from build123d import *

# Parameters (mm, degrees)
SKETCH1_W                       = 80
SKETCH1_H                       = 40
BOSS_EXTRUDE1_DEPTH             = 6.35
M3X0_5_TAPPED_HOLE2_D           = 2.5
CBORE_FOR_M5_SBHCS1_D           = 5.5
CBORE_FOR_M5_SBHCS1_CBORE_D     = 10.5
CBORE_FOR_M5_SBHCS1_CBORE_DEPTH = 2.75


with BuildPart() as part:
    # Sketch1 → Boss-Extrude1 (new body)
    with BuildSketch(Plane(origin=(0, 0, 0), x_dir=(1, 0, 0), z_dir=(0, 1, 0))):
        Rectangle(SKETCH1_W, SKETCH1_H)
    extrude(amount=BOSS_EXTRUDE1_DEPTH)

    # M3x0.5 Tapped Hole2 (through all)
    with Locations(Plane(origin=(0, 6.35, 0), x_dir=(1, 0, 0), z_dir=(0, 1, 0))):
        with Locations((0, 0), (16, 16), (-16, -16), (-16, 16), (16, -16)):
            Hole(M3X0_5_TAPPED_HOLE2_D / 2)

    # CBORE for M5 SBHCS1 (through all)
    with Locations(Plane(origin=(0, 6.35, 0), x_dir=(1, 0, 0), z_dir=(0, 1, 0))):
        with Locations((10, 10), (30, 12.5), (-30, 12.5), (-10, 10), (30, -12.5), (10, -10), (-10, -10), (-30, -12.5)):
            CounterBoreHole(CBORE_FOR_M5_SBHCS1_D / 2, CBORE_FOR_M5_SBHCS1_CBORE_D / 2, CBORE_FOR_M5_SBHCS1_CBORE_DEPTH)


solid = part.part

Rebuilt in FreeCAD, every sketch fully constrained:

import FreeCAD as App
import Part
import Sketcher

V = App.Vector

doc = App.newDocument("Part")
body = doc.addObject("PartDesign::Body", "Body")

# Sketch on XZ plane
sketch1 = doc.addObject("Sketcher::SketchObject", "Sketch")
body.addObject(sketch1)
sketch1.AttachmentSupport = (doc.XZ_Plane, [""])
sketch1.MapMode = "FlatFace"
sketch1.addGeometry([
    Part.LineSegment(V(-40, -20, 0), V(-40, 20, 0)),
    Part.LineSegment(V(-40, 20, 0), V(40, 20, 0)),
    Part.LineSegment(V(40, 20, 0), V(40, -20, 0)),
    Part.LineSegment(V(40, -20, 0), V(-40, -20, 0)),
], False)
sketch1.addConstraint([
    Sketcher.Constraint("Coincident", 0, 2, 1, 1),
    Sketcher.Constraint("Coincident", 1, 2, 2, 1),
    Sketcher.Constraint("Coincident", 2, 2, 3, 1),
    Sketcher.Constraint("Coincident", 3, 2, 0, 1),
    Sketcher.Constraint("Vertical", 0),
    Sketcher.Constraint("Horizontal", 1),
    Sketcher.Constraint("Vertical", 2),
    Sketcher.Constraint("Horizontal", 3),
    Sketcher.Constraint("Symmetric", 0, 2, 2, 2, -1, 1),
    Sketcher.Constraint("DistanceX", 1, 1, 1, 2, 80.0),
    Sketcher.Constraint("DistanceY", 0, 1, 0, 2, 40.0),
])
pad1 = doc.addObject("PartDesign::Pad", "Pad")
body.addObject(pad1)
pad1.Profile = sketch1
pad1.Length = 6.35
pad1.Reversed = True

# Sketch on XZ plane
sketch2 = doc.addObject("Sketcher::SketchObject", "Sketch001")
body.addObject(sketch2)
sketch2.AttachmentSupport = (doc.XZ_Plane, [""])
sketch2.MapMode = "FlatFace"
sketch2.AttachmentOffset = App.Placement(V(0, 0, -6.35), App.Rotation())
sketch2.addGeometry([
    Part.Circle(V(0, 0, 0), V(0, 0, 1), 1.2),  # 0
    Part.Circle(V(16, -16, 0), V(0, 0, 1), 1.2),  # 1
    Part.Circle(V(-16, 16, 0), V(0, 0, 1), 1.2),  # 2
    Part.Circle(V(-16, -16, 0), V(0, 0, 1), 1.2),  # 3
    Part.Circle(V(16, 16, 0), V(0, 0, 1), 1.2),  # 4
], False)
sketch2.addConstraint([
    Sketcher.Constraint("Coincident", 0, 3, -1, 1),
    Sketcher.Constraint("Equal", 0, 1),
    Sketcher.Constraint("Equal", 1, 2),
    Sketcher.Constraint("Equal", 2, 3),
    Sketcher.Constraint("Equal", 3, 4),
    Sketcher.Constraint("Symmetric", 1, 3, 2, 3, -1, 1),
    Sketcher.Constraint("Symmetric", 3, 3, 4, 3, -1, 1),
    Sketcher.Constraint("Symmetric", 1, 3, 3, 3, -2),
    Sketcher.Constraint("Diameter", 0, 2.5),
    Sketcher.Constraint("DistanceX", -1, 1, 1, 3, 16.0),
    Sketcher.Constraint("DistanceY", 1, 3, -1, 1, 16.0),
])
doc.recompute()
hole = doc.addObject("PartDesign::Hole", "Hole")
body.addObject(hole)
hole.Profile = sketch2
hole.ThreadType = "None"
hole.Diameter = 2.5
hole.DepthType = "ThroughAll"
hole.Reversed = True

# Sketch on XZ plane
sketch3 = doc.addObject("Sketcher::SketchObject", "Sketch002")
body.addObject(sketch3)
sketch3.AttachmentSupport = (doc.XZ_Plane, [""])
sketch3.MapMode = "FlatFace"
sketch3.AttachmentOffset = App.Placement(V(0, 0, -6.35), App.Rotation())
sketch3.addGeometry([
    Part.Circle(V(10, -10, 0), V(0, 0, 1), 2.8),  # 0
    Part.Circle(V(30, -12.5, 0), V(0, 0, 1), 2.8),  # 1
    Part.Circle(V(-30, -12.5, 0), V(0, 0, 1), 2.8),  # 2
    Part.Circle(V(-10, -10, 0), V(0, 0, 1), 2.8),  # 3
    Part.Circle(V(30, 12.5, 0), V(0, 0, 1), 2.8),  # 4
    Part.Circle(V(10, 10, 0), V(0, 0, 1), 2.8),  # 5
    Part.Circle(V(-10, 10, 0), V(0, 0, 1), 2.8),  # 6
    Part.Circle(V(-30, 12.5, 0), V(0, 0, 1), 2.8),  # 7
], False)
sketch3.addConstraint([
    Sketcher.Constraint("Equal", 0, 1),
    Sketcher.Constraint("Equal", 1, 2),
    Sketcher.Constraint("Equal", 2, 3),
    Sketcher.Constraint("Equal", 3, 4),
    Sketcher.Constraint("Equal", 4, 5),
    Sketcher.Constraint("Equal", 5, 6),
    Sketcher.Constraint("Equal", 6, 7),
    Sketcher.Constraint("Symmetric", 2, 3, 4, 3, -1, 1),
    Sketcher.Constraint("Symmetric", 3, 3, 5, 3, -1, 1),
    Sketcher.Constraint("Symmetric", 0, 3, 6, 3, -1, 1),
    Sketcher.Constraint("Symmetric", 1, 3, 7, 3, -1, 1),
    Sketcher.Constraint("Symmetric", 1, 3, 2, 3, -2),
    Sketcher.Constraint("Symmetric", 0, 3, 3, 3, -2),
    Sketcher.Constraint("Diameter", 0, 5.5),
    Sketcher.Constraint("DistanceX", -1, 1, 0, 3, 10.0),
    Sketcher.Constraint("DistanceY", 0, 3, -1, 1, 10.0),
    Sketcher.Constraint("DistanceX", -1, 1, 1, 3, 30.0),
    Sketcher.Constraint("DistanceY", 1, 3, 4, 3, 25.0),
])
doc.recompute()
hole2 = doc.addObject("PartDesign::Hole", "Hole001")
body.addObject(hole2)
hole2.Profile = sketch3
hole2.ThreadType = "None"
hole2.Diameter = 5.5
hole2.DepthType = "ThroughAll"
hole2.HoleCutType = "Counterbore"
hole2.HoleCutDiameter = 10.5
hole2.HoleCutDepth = 2.75
hole2.Reversed = True

doc.recompute()
